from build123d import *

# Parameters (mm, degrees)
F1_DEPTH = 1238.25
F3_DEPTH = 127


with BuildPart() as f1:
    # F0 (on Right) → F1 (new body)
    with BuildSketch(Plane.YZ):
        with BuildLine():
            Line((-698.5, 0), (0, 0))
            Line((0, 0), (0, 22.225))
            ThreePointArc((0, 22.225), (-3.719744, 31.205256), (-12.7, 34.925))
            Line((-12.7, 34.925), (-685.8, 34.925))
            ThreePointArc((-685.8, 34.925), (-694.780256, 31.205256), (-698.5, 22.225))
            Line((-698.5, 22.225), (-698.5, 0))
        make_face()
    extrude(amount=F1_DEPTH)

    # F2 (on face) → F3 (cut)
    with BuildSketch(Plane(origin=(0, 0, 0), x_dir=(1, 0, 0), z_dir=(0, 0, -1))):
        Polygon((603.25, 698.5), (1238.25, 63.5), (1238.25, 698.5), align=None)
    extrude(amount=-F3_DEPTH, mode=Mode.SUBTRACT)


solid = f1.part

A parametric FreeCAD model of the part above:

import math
import FreeCAD as App
import Part
import Sketcher
from FreeCAD import Vector
Q = App.Units.Quantity

doc = App.newDocument("Part")
params = doc.addObject("Spreadsheet::Sheet", "Params")
for row, (alias, value) in enumerate([
    ("sketch1_radius", "0.5 in"),
    ("sketch1_width", "27.5 in"),
    ("sketch1_height", "0.875 in"),
    ("pad1_length", "48.75 in"),
    ("sketch2_width", "25 in"),
    ("pocket1_length", "5 in"),
], start=1):
    params.set(f"A{row}", alias)
    params.set(f"B{row}", "=" + value)
    params.setAlias(f"B{row}", alias)

body = doc.addObject("PartDesign::Body", "Body")

# Sketch on YZ plane
sketch1 = body.newObject("Sketcher::SketchObject", "Sketch")
sketch1.AttachmentSupport = (doc.getObject("YZ_Plane"), [""])
sketch1.MapMode = "FlatFace"
sketch1.addGeometry([
    Part.LineSegment(Vector(-698, 0, 0), Vector(0, 0, 0)),  # 0
    Part.LineSegment(Vector(0, 0, 0), Vector(0, 22, 0)),  # 1
    Part.ArcOfCircle(Part.Circle(Vector(-13, 22, 0), Vector(0, 0, 1), 13), math.radians(0), math.radians(90)),  # 2
    Part.LineSegment(Vector(-13, 35, 0), Vector(-686, 35, 0)),  # 3
    Part.ArcOfCircle(Part.Circle(Vector(-686, 22, 0), Vector(0, 0, 1), 13), math.radians(90), math.radians(180)),  # 4
    Part.LineSegment(Vector(-698, 22, 0), Vector(-698, 0, 0)),  # 5
], False)
sketch1.addConstraint([
    Sketcher.Constraint("Coincident", 0, 2, 1, 1),
    Sketcher.Constraint("Tangent", 1, 2, 2, 1),
    Sketcher.Constraint("Tangent", 2, 2, 3, 1),
    Sketcher.Constraint("Tangent", 3, 2, 4, 1),
    Sketcher.Constraint("Tangent", 4, 2, 5, 1),
    Sketcher.Constraint("Coincident", 5, 2, 0, 1),
    Sketcher.Constraint("Horizontal", 0),
    Sketcher.Constraint("Vertical", 1),
    Sketcher.Constraint("Horizontal", 3),
    Sketcher.Constraint("Vertical", 5),
    Sketcher.Constraint("Coincident", 0, 2, -1, 1),
    Sketcher.Constraint("Equal", 2, 4),
    Sketcher.Constraint("Radius", 2, Q("0.5 in")),
    Sketcher.Constraint("DistanceX", 0, 1, 0, 2, Q("27.5 in")),
    Sketcher.Constraint("DistanceY", 1, 1, 1, 2, Q("0.875 in")),
])
sketch1.setExpression("Constraints[12]", "Params.sketch1_radius")
sketch1.setExpression("Constraints[13]", "Params.sketch1_width")
sketch1.setExpression("Constraints[14]", "Params.sketch1_height")
pad1 = body.newObject("PartDesign::Pad", "Pad")
pad1.Profile = sketch1
pad1.setExpression("Length", "Params.pad1_length")

# Sketch on XY plane
sketch2 = body.newObject("Sketcher::SketchObject", "Sketch001")
sketch2.AttachmentSupport = (doc.getObject("XY_Plane"), [""])
sketch2.MapMode = "FlatFace"
sketch2.addGeometry([
    Part.LineSegment(Vector(603, -698, 0), Vector(1238, -64, 0)),
    Part.LineSegment(Vector(1238, -64, 0), Vector(1238, -698, 0)),
    Part.LineSegment(Vector(1238, -698, 0), Vector(603, -698, 0)),
], False)
sketch2.addConstraint([
    Sketcher.Constraint("Coincident", 0, 2, 1, 1),
    Sketcher.Constraint("Coincident", 1, 2, 2, 1),
    Sketcher.Constraint("Coincident", 2, 2, 0, 1),
    Sketcher.Constraint("Vertical", 1),
    Sketcher.Constraint("Horizontal", 2),
    Sketcher.Constraint("Equal", 2, 1),
    Sketcher.Constraint("DistanceX", 2, 2, 2, 1, Q("25 in")),
    Sketcher.Constraint("DistanceY", 0, 2, -1, 1, Q("2.5 in")),
    Sketcher.Constraint("DistanceX", -1, 1, 0, 2, Q("48.75 in")),
])
sketch2.setExpression("Constraints[6]", "Params.sketch2_width")
pocket1 = body.newObject("PartDesign::Pocket", "Pocket")
pocket1.Profile = sketch2
pocket1.setExpression("Length", "Params.pocket1_length")
pocket1.Reversed = True

doc.recompute()
